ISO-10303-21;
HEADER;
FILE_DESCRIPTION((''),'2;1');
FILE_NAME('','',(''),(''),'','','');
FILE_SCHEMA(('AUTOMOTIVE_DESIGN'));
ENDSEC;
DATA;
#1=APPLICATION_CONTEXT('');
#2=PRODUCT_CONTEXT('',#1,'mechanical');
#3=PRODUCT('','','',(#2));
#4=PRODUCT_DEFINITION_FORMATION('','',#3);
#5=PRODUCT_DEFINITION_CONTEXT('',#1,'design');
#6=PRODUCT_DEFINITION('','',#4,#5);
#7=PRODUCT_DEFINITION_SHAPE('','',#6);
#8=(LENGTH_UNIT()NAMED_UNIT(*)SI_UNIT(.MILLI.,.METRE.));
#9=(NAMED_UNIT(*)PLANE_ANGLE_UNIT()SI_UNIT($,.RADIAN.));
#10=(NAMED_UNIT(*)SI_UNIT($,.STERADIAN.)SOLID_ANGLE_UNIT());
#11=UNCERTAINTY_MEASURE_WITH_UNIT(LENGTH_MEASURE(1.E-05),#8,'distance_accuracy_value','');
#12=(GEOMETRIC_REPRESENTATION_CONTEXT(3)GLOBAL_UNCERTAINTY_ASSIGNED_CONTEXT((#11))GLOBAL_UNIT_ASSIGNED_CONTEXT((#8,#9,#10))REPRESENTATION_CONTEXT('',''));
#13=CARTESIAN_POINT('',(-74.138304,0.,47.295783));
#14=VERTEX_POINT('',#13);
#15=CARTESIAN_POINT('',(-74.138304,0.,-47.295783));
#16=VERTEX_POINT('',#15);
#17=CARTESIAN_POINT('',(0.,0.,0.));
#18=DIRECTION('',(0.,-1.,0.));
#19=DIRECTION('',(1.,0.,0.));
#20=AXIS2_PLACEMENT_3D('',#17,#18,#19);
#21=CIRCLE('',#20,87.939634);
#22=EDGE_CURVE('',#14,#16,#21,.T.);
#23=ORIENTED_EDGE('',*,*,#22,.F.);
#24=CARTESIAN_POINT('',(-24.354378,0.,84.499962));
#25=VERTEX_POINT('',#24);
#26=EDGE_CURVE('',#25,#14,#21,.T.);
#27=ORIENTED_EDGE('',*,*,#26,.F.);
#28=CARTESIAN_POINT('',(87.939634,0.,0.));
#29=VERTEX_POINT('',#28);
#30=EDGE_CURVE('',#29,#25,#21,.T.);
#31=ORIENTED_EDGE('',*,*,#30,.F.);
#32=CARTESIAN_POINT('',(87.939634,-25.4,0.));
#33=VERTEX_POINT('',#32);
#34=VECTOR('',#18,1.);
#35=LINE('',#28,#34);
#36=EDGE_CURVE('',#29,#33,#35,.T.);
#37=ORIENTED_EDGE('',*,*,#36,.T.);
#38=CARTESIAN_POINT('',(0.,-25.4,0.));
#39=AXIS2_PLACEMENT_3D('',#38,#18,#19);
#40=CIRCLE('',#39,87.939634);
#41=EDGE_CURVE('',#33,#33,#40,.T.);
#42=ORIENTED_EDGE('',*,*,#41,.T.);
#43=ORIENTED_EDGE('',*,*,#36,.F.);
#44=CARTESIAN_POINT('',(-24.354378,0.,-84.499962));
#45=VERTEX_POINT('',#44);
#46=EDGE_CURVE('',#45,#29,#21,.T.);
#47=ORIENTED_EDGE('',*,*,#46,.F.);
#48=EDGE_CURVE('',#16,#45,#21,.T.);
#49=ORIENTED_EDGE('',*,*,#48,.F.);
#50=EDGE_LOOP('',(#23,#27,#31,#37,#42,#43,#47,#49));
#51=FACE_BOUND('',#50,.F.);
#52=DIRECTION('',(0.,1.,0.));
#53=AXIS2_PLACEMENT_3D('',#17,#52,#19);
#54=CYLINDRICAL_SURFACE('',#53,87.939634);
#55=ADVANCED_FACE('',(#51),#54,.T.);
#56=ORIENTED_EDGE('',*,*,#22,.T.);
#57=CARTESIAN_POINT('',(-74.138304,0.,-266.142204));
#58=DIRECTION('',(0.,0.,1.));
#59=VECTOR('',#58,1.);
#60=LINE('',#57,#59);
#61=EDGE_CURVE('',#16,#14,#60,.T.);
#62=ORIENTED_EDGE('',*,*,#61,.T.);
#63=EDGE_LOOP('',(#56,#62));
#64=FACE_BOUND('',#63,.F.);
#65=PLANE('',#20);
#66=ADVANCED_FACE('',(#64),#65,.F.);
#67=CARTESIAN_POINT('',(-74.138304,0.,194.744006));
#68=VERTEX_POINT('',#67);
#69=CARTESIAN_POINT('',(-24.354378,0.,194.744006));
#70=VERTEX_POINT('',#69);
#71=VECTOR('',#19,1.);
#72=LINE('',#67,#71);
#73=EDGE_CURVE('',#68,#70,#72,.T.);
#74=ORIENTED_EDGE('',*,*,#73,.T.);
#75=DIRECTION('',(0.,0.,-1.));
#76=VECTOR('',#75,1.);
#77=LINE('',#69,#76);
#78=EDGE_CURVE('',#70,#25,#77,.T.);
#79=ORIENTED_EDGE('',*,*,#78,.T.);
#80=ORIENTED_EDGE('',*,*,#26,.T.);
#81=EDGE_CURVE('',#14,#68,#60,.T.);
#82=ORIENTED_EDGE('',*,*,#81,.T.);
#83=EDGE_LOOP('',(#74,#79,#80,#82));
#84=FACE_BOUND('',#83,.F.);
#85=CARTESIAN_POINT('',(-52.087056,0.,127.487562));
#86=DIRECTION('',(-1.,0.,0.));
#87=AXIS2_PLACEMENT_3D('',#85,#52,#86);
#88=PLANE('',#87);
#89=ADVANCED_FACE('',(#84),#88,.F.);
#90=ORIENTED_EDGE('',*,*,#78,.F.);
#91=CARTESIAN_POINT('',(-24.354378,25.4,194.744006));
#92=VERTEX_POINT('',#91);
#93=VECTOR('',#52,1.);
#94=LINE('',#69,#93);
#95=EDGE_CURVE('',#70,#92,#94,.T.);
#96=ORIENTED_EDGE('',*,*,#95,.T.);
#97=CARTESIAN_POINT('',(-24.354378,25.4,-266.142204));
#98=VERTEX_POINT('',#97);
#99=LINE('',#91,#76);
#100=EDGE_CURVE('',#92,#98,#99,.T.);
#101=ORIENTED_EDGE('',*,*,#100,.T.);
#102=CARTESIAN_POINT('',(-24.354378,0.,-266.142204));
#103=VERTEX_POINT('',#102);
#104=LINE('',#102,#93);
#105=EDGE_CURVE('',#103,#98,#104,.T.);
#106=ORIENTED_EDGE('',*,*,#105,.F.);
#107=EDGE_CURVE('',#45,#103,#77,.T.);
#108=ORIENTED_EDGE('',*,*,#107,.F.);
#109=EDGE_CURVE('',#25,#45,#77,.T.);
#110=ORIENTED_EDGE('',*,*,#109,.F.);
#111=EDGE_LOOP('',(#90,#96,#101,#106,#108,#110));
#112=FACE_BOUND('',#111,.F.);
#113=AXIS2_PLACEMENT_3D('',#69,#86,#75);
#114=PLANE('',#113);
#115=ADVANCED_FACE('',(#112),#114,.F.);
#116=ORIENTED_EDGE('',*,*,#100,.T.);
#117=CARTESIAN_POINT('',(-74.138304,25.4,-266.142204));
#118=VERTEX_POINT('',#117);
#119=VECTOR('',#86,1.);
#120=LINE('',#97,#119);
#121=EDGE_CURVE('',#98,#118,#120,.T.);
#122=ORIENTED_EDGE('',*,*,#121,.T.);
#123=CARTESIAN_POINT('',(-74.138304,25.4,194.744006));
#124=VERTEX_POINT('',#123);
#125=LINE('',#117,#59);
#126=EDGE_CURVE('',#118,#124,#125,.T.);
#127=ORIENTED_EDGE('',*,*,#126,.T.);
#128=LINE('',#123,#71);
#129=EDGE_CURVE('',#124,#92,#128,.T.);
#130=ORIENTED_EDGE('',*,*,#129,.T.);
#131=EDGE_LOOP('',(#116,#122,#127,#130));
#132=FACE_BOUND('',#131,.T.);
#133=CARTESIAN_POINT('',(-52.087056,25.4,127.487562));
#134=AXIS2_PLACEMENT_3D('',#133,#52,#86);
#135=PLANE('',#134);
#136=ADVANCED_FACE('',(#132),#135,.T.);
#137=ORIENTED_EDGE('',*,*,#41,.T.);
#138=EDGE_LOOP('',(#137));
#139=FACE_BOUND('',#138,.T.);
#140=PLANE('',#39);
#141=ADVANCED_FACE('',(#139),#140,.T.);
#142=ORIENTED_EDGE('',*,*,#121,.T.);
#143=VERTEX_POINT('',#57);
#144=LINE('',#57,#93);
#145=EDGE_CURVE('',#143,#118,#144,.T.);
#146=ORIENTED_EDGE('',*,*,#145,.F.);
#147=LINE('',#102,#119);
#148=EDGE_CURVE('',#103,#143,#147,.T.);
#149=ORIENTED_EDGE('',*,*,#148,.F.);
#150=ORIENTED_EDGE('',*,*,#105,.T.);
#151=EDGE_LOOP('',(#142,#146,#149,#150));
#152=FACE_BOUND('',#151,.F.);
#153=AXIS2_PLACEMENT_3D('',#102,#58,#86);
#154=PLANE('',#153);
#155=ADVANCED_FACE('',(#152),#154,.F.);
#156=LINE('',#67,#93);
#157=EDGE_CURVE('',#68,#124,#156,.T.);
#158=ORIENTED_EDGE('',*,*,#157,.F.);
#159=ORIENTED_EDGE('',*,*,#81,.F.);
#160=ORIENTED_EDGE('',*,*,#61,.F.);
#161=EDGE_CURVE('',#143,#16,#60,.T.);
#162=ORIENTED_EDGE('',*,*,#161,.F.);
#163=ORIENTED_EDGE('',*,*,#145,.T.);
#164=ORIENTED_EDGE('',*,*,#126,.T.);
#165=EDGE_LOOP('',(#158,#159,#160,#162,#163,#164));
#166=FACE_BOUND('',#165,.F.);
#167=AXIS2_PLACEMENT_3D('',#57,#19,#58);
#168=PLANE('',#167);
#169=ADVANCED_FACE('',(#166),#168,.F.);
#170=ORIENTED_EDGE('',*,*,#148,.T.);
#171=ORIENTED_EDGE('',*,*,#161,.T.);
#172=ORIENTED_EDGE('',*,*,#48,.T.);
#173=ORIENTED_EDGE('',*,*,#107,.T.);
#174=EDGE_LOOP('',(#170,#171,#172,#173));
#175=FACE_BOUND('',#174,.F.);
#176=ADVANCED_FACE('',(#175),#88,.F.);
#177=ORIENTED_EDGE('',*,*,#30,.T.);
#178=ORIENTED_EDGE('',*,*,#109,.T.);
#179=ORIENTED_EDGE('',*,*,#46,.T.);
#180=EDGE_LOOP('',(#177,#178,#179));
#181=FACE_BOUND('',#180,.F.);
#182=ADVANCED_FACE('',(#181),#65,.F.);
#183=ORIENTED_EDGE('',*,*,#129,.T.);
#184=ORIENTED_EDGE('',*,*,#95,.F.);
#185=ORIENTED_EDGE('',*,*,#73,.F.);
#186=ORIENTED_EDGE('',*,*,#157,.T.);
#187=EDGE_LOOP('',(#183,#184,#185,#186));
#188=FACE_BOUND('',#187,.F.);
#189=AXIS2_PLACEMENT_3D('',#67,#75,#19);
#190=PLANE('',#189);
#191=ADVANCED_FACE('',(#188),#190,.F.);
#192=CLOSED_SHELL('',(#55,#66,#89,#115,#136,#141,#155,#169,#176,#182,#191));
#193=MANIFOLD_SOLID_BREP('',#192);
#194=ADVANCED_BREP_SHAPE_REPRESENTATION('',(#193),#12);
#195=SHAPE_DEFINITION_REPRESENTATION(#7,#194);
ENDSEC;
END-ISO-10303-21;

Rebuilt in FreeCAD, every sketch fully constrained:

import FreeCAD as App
import Part
import Sketcher
Q = App.Units.Quantity

doc = App.newDocument("Part")
params = doc.addObject("Spreadsheet::Sheet", "Params")
for row, (alias, value) in enumerate([
    ("pad1_length", "1 in"),
    ("pad2_length", "1 in"),
], start=1):
    params.set(f"A{row}", alias)
    params.set(f"B{row}", "=" + value)
    params.setAlias(f"B{row}", alias)

body = doc.addObject("PartDesign::Body", "Body")

sketch1 = doc.addObject("Sketcher::SketchObject", "Sketch")
body.addObject(sketch1)
sketch1.AttachmentSupport = (doc.XZ_Plane, [""])
sketch1.MapMode = "FlatFace"
sketch1.addGeometry(Part.Circle(App.Vector(0, 0, 0), App.Vector(0, 0, 1), 88), False)
sketch1.addConstraint([
    Sketcher.Constraint("Coincident", 0, 3, -1, 1),
    Sketcher.Constraint("Diameter", 0, Q("175.879268 mm")),
])
pad1 = doc.addObject("PartDesign::Pad", "Pad")
body.addObject(pad1)
pad1.Profile = sketch1
pad1.setExpression("Length", "Params.pad1_length")

sketch2 = doc.addObject("Sketcher::SketchObject", "Sketch001")
body.addObject(sketch2)
sketch2.AttachmentSupport = (doc.XZ_Plane, [""])
sketch2.MapMode = "FlatFace"
sketch2.addGeometry([
    Part.LineSegment(App.Vector(-74, 195, 0), App.Vector(-24, 195, 0)),
    Part.LineSegment(App.Vector(-24, 195, 0), App.Vector(-24, -266, 0)),
    Part.LineSegment(App.Vector(-24, -266, 0), App.Vector(-74, -266, 0)),
    Part.LineSegment(App.Vector(-74, -266, 0), App.Vector(-74, 195, 0)),
], False)
sketch2.addConstraint([
    Sketcher.Constraint("Coincident", 0, 2, 1, 1),
    Sketcher.Constraint("Coincident", 1, 2, 2, 1),
    Sketcher.Constraint("Coincident", 2, 2, 3, 1),
    Sketcher.Constraint("Coincident", 3, 2, 0, 1),
    Sketcher.Constraint("Horizontal", 0),
    Sketcher.Constraint("Vertical", 1),
    Sketcher.Constraint("Horizontal", 2),
    Sketcher.Constraint("Vertical", 3),
    Sketcher.Constraint("DistanceY", 1, 2, 1, 1, Q("460.88621 mm")),
    Sketcher.Constraint("DistanceX", 0, 1, 0, 2, Q("49.783926 mm")),
    Sketcher.Constraint("DistanceX", 0, 2, -1, 1, Q("24.354378 mm")),
    Sketcher.Constraint("DistanceY", -1, 1, 0, 2, Q("194.744006 mm")),
])
pad2 = doc.addObject("PartDesign::Pad", "Pad001")
body.addObject(pad2)
pad2.Profile = sketch2
pad2.setExpression("Length", "Params.pad2_length")
pad2.Reversed = True

doc.recompute()
